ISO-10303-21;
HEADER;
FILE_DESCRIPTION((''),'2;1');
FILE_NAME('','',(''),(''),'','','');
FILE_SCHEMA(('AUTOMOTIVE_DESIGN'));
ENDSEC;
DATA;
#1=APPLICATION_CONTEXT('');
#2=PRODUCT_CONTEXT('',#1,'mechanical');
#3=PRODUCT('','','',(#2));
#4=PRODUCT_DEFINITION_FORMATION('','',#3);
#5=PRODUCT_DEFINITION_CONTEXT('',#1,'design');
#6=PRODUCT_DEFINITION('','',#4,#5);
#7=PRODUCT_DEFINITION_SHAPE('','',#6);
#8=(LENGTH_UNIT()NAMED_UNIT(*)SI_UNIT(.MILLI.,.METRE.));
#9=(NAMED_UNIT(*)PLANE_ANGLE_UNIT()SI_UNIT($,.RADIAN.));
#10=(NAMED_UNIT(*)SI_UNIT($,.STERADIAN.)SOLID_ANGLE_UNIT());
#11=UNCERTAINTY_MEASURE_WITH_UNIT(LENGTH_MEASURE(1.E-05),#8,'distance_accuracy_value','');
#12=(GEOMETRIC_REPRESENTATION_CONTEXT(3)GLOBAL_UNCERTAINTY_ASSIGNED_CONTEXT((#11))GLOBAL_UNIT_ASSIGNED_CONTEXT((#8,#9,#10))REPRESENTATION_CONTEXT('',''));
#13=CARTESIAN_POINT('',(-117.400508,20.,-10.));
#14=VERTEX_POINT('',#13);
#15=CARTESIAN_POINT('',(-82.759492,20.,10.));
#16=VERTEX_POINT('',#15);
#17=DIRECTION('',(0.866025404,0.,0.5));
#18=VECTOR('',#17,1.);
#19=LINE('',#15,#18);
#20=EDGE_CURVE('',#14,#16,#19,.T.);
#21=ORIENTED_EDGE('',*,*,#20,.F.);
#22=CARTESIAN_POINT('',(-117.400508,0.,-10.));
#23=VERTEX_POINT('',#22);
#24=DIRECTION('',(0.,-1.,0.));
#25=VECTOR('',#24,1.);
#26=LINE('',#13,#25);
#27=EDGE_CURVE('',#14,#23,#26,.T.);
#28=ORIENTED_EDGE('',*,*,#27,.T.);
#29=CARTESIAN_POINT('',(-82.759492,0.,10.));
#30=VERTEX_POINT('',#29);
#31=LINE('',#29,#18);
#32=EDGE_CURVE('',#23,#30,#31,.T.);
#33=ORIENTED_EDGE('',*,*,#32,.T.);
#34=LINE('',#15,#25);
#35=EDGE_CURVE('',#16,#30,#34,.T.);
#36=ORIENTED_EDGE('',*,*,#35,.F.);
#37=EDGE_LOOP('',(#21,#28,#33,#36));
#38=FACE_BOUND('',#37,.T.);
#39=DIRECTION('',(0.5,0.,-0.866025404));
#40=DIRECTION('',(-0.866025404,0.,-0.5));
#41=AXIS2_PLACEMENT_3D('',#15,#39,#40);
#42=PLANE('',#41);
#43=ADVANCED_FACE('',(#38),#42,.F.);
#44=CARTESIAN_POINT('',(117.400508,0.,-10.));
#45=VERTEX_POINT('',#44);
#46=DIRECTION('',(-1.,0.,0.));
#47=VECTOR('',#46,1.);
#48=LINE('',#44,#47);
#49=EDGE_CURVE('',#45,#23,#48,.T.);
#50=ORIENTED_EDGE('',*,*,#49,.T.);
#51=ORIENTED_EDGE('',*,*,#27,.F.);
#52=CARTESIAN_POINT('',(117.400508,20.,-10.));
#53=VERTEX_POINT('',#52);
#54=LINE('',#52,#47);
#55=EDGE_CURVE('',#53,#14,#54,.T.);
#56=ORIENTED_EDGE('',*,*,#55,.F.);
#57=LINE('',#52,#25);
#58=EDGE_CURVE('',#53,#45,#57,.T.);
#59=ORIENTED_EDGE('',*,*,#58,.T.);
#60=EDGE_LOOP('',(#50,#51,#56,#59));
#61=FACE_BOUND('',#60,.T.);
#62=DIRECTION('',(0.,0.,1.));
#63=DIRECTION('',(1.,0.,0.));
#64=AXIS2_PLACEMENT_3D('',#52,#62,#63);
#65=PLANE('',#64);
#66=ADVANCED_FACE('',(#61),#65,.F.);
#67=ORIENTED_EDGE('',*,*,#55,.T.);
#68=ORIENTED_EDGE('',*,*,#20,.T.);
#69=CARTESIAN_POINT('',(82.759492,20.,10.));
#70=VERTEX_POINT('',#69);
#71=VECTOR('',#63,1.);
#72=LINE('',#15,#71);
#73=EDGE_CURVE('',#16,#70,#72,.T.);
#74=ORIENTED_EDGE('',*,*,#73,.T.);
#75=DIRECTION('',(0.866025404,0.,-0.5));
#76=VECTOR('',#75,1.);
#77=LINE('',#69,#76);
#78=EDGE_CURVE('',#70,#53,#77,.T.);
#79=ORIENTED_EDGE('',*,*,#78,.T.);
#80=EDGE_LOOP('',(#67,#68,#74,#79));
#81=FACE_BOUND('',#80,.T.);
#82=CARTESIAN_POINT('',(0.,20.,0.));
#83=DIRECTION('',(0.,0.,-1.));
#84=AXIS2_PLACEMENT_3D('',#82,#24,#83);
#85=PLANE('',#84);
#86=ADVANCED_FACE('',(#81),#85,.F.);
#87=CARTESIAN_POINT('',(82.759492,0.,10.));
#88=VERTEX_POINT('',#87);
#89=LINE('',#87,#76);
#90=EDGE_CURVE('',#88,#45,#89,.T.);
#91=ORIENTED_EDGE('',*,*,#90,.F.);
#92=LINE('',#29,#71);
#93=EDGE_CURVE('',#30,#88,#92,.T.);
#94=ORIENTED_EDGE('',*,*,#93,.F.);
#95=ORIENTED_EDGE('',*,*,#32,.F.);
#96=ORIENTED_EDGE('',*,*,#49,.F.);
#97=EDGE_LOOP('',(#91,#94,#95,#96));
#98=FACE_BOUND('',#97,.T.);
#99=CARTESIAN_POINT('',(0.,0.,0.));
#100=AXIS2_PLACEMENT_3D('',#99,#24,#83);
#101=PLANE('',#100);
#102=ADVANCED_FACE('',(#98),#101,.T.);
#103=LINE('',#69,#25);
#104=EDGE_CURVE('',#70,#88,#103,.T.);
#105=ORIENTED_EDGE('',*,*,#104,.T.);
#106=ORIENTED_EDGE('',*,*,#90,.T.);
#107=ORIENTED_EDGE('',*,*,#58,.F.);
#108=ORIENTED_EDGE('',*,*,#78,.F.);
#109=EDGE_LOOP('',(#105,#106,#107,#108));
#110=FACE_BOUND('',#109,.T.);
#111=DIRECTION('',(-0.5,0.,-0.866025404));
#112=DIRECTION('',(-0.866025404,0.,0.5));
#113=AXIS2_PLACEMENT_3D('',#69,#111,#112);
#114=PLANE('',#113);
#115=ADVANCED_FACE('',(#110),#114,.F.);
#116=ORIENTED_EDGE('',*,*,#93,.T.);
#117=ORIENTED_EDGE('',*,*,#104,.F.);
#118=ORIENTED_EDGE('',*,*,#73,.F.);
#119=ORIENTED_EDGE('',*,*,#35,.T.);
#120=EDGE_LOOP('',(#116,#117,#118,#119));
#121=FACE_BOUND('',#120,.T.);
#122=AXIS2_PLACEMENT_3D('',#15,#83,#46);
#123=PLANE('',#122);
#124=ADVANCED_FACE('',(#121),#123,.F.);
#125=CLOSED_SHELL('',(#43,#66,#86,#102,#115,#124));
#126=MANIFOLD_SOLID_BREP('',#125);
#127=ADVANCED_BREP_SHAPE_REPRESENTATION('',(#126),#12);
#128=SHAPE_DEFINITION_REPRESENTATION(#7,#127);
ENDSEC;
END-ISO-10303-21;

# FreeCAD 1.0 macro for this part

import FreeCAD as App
import Part
import Sketcher

V = App.Vector
Q = App.Units.Quantity


def add_polygon(sketch, points):
    """Adds a closed chain of lines whose ends are joined by coincident constraints."""
    first, n = sketch.GeometryCount, len(points)
    for a, b in zip(points, points[1:] + points[:1]):
        sketch.addGeometry(Part.LineSegment(App.Vector(*a, 0), App.Vector(*b, 0)), False)
    for i in range(n):
        sketch.addConstraint(Sketcher.Constraint("Coincident", first + i, 2, first + (i + 1) % n, 1))

doc = App.newDocument("Part")
body = doc.addObject("PartDesign::Body", "Body")

sketch1 = body.newObject("Sketcher::SketchObject", "Sketch")
sketch1.AttachmentSupport = (doc.getObject("XZ_Plane"), [""])
sketch1.MapMode = "FlatFace"
add_polygon(sketch1, [(-83, 10), (83, 10), (117, -10), (-117, -10)])
sketch1.addConstraint([
    Sketcher.Constraint("Horizontal", 0),
    Sketcher.Constraint("Horizontal", 2),
    Sketcher.Constraint("Equal", 1, 3),
    Sketcher.Constraint("Angle", 1, Q("-30 deg")),
    Sketcher.Constraint("Distance", 1, Q("40 mm")),
    Sketcher.Constraint("DistanceY", -1, 1, 0, 2, Q("10 mm")),
    Sketcher.Constraint("DistanceX", 2, 2, 0, 2, Q("200.16 mm")),
    Sketcher.Constraint("DistanceX", -1, 1, 0, 2, Q("82.759492 mm")),
])
pad1 = body.newObject("PartDesign::Pad", "Pad")
pad1.Profile = sketch1
pad1.Length = 20
pad1.Reversed = True

doc.recompute()
